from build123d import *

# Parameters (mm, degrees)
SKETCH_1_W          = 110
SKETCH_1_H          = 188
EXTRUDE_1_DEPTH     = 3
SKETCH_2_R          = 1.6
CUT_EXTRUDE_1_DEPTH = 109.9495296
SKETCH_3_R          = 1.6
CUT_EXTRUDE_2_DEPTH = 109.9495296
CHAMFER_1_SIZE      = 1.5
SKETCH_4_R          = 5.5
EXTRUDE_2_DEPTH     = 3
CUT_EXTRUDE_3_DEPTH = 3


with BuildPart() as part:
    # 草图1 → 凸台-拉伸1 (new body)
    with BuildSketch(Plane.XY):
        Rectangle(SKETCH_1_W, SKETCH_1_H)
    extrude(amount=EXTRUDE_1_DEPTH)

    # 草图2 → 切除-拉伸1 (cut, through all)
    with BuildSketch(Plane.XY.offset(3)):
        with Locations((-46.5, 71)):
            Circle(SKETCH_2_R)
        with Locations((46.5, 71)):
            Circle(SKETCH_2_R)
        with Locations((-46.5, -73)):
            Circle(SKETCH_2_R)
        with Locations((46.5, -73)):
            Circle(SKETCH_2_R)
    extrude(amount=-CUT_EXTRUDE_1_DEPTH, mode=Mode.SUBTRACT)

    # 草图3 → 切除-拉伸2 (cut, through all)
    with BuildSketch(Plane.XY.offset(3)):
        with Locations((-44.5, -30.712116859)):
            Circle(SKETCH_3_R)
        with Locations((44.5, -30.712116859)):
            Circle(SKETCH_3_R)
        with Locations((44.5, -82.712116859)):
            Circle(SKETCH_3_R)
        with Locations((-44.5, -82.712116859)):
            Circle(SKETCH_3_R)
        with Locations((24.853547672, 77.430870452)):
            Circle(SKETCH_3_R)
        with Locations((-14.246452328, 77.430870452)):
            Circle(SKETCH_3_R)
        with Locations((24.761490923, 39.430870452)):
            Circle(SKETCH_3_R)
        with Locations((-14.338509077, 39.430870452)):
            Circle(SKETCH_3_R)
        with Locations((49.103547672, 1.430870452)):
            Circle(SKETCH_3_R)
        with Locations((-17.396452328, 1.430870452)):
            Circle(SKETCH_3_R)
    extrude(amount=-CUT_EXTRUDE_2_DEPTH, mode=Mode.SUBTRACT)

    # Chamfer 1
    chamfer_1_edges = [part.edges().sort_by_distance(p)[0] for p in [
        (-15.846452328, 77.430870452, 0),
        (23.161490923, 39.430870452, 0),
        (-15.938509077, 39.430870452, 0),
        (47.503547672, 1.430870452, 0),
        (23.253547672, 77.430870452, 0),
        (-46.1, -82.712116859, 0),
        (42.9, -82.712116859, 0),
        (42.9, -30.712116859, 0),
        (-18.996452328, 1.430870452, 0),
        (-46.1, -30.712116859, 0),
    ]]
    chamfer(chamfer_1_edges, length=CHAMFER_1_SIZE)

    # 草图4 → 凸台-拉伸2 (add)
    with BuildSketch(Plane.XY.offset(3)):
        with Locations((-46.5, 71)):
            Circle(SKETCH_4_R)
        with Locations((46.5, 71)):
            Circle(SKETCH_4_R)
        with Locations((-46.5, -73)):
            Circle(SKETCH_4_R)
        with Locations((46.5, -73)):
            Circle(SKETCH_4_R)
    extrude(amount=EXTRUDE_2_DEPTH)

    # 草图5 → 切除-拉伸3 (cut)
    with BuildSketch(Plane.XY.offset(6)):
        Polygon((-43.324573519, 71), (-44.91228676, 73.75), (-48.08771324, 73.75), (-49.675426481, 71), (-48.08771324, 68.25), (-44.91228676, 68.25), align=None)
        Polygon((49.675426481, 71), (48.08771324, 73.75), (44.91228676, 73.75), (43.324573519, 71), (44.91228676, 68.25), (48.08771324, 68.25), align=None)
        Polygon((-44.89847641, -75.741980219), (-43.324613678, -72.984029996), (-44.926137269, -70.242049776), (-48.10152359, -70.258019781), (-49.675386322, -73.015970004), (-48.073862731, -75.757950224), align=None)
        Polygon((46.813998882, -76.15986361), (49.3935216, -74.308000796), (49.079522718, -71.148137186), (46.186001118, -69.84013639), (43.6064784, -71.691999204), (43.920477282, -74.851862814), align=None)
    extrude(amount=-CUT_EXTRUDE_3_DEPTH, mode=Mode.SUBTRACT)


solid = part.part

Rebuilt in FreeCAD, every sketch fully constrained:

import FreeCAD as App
import Part
import Sketcher

V = App.Vector
Q = App.Units.Quantity


def edges_at(feature, points):
    """Names of the edges that pass closest to the given points."""
    edges = feature.Shape.Edges
    near = lambda p: min(range(len(edges)), key=lambda i: edges[i].distToShape(Part.Vertex(*p))[0])
    return sorted({f"Edge{near(p) + 1}" for p in points})


def add_polygon(sketch, points):
    """Adds a closed chain of lines whose ends are joined by coincident constraints."""
    first, n = sketch.GeometryCount, len(points)
    for a, b in zip(points, points[1:] + points[:1]):
        sketch.addGeometry(Part.LineSegment(App.Vector(*a, 0), App.Vector(*b, 0)), False)
    for i in range(n):
        sketch.addConstraint(Sketcher.Constraint("Coincident", first + i, 2, first + (i + 1) % n, 1))

doc = App.newDocument("Part")
body = doc.addObject("PartDesign::Body", "Body")

# Sketch on XY plane
sketch1 = body.newObject("Sketcher::SketchObject", "Sketch")
sketch1.AttachmentSupport = (doc.getObject("XY_Plane"), [""])
sketch1.MapMode = "FlatFace"
add_polygon(sketch1, [(-55, 94), (-55, -94), (55, -94), (55, 94)])  # lines 0-3
sketch1.addConstraint([
    Sketcher.Constraint("Vertical", 0),
    Sketcher.Constraint("Horizontal", 1),
    Sketcher.Constraint("Vertical", 2),
    Sketcher.Constraint("Horizontal", 3),
    Sketcher.Constraint("Symmetric", 0, 2, 2, 2, -1, 1),
    Sketcher.Constraint("DistanceX", 1, 1, 1, 2, Q("110 mm")),
    Sketcher.Constraint("DistanceY", 0, 2, 0, 1, Q("188 mm")),
])
pad1 = body.newObject("PartDesign::Pad", "Pad")
pad1.Profile = sketch1
pad1.Length = 3

# Sketch on XY plane
sketch2 = body.newObject("Sketcher::SketchObject", "Sketch001")
sketch2.AttachmentSupport = (doc.getObject("XY_Plane"), [""])
sketch2.MapMode = "FlatFace"
sketch2.AttachmentOffset = App.Placement(V(0, 0, 3), App.Rotation())
sketch2.addGeometry([
    Part.Circle(V(-46.5, 71, 0), V(0, 0, 1), 1.6),
    Part.Circle(V(46.5, 71, 0), V(0, 0, 1), 1.6),
    Part.Circle(V(-46.5, -73, 0), V(0, 0, 1), 1.6),
    Part.Circle(V(46.5, -73, 0), V(0, 0, 1), 1.6),
], False)
sketch2.addConstraint([
    Sketcher.Constraint("Equal", 0, 1),
    Sketcher.Constraint("Equal", 1, 2),
    Sketcher.Constraint("Equal", 2, 3),
    Sketcher.Constraint("Symmetric", 0, 3, 1, 3, -2),
    Sketcher.Constraint("Symmetric", 2, 3, 3, 3, -2),
    Sketcher.Constraint("Vertical", 0, 3, 2, 3),
    Sketcher.Constraint("Diameter", 0, Q("3.2 mm")),
    Sketcher.Constraint("DistanceY", -1, 1, 0, 3, Q("71 mm")),
    Sketcher.Constraint("DistanceY", 2, 3, -1, 1, Q("73 mm")),
    Sketcher.Constraint("DistanceX", 0, 3, 1, 3, Q("93 mm")),
])
pocket1 = body.newObject("PartDesign::Pocket", "Pocket")
pocket1.Profile = sketch2
pocket1.Type = "ThroughAll"

# Sketch on XY plane
sketch3 = body.newObject("Sketcher::SketchObject", "Sketch002")
sketch3.AttachmentSupport = (doc.getObject("XY_Plane"), [""])
sketch3.MapMode = "FlatFace"
sketch3.AttachmentOffset = App.Placement(V(0, 0, 3), App.Rotation())
sketch3.addGeometry([
    Part.Circle(V(-44.5, -30.712117, 0), V(0, 0, 1), 1.6),  # 0
    Part.Circle(V(44.5, -30.712117, 0), V(0, 0, 1), 1.6),  # 1
    Part.Circle(V(44.5, -82.712117, 0), V(0, 0, 1), 1.6),  # 2
    Part.Circle(V(-44.5, -82.712117, 0), V(0, 0, 1), 1.6),  # 3
    Part.Circle(V(24.853548, 77.43087, 0), V(0, 0, 1), 1.6),  # 4
    Part.Circle(V(-14.246452, 77.43087, 0), V(0, 0, 1), 1.6),  # 5
    Part.Circle(V(24.761491, 39.43087, 0), V(0, 0, 1), 1.6),  # 6
    Part.Circle(V(-14.338509, 39.43087, 0), V(0, 0, 1), 1.6),  # 7
    Part.Circle(V(49.103548, 1.43087, 0), V(0, 0, 1), 1.6),  # 8
    Part.Circle(V(-17.396452, 1.43087, 0), V(0, 0, 1), 1.6),  # 9
], False)
sketch3.addConstraint([
    Sketcher.Constraint("Equal", 0, 1),
    Sketcher.Constraint("Equal", 1, 2),
    Sketcher.Constraint("Equal", 2, 3),
    Sketcher.Constraint("Equal", 3, 4),
    Sketcher.Constraint("Equal", 4, 5),
    Sketcher.Constraint("Equal", 5, 6),
    Sketcher.Constraint("Equal", 6, 7),
    Sketcher.Constraint("Equal", 7, 8),
    Sketcher.Constraint("Equal", 8, 9),
    Sketcher.Constraint("Symmetric", 0, 3, 1, 3, -2),
    Sketcher.Constraint("Symmetric", 2, 3, 3, 3, -2),
    Sketcher.Constraint("Horizontal", 4, 3, 5, 3),
    Sketcher.Constraint("Horizontal", 6, 3, 7, 3),
    Sketcher.Constraint("Horizontal", 8, 3, 9, 3),
    Sketcher.Constraint("Vertical", 1, 3, 2, 3),
    Sketcher.Constraint("Diameter", 0, Q("3.2 mm")),
    Sketcher.Constraint("DistanceX", 0, 3, 1, 3, Q("89 mm")),
    Sketcher.Constraint("DistanceY", 2, 3, 1, 3, Q("52 mm")),
    Sketcher.Constraint("DistanceY", 6, 3, 4, 3, Q("38 mm")),
    Sketcher.Constraint("DistanceY", 8, 3, 6, 3, Q("38 mm")),
    Sketcher.Constraint("DistanceX", 5, 3, 4, 3, Q("39.1 mm")),
    Sketcher.Constraint("DistanceX", 7, 3, 6, 3, Q("39.1 mm")),
    Sketcher.Constraint("DistanceX", 9, 3, 8, 3, Q("66.5 mm")),
    Sketcher.Constraint("DistanceX", 4, 3, 8, 3, Q("24.25 mm")),
    Sketcher.Constraint("DistanceY", -1, 1, 4, 3, Q("77.43087 mm")),
    Sketcher.Constraint("DistanceX", -1, 1, 6, 3, Q("24.761491 mm")),
    Sketcher.Constraint("DistanceY", 0, 3, -1, 1, Q("30.712117 mm")),
    Sketcher.Constraint("DistanceX", -1, 1, 4, 3, Q("24.853548 mm")),
])
pocket2 = body.newObject("PartDesign::Pocket", "Pocket001")
pocket2.Profile = sketch3
pocket2.Type = "ThroughAll"
doc.recompute()

chamfer = body.newObject("PartDesign::Chamfer", "Chamfer")
chamfer.Base = (pocket2, edges_at(pocket2, [
    (-15.846, 77.431, 0),
    (23.161, 39.431, 0),
    (-15.939, 39.431, 0),
    (47.504, 1.431, 0),
    (23.254, 77.431, 0),
    (-46.1, -82.712, 0),
    (42.9, -82.712, 0),
    (42.9, -30.712, 0),
    (-18.996, 1.431, 0),
    (-46.1, -30.712, 0),
]))
chamfer.Size = 1.5

# Sketch on XY plane
sketch4 = body.newObject("Sketcher::SketchObject", "Sketch003")
sketch4.AttachmentSupport = (doc.getObject("XY_Plane"), [""])
sketch4.MapMode = "FlatFace"
sketch4.AttachmentOffset = App.Placement(V(0, 0, 3), App.Rotation())
sketch4.addGeometry([
    Part.Circle(V(-46.5, 71, 0), V(0, 0, 1), 5.5),
    Part.Circle(V(46.5, 71, 0), V(0, 0, 1), 5.5),
    Part.Circle(V(-46.5, -73, 0), V(0, 0, 1), 5.5),
    Part.Circle(V(46.5, -73, 0), V(0, 0, 1), 5.5),
], False)
sketch4.addConstraint([
    Sketcher.Constraint("Equal", 0, 1),
    Sketcher.Constraint("Equal", 1, 2),
    Sketcher.Constraint("Equal", 2, 3),
    Sketcher.Constraint("Symmetric", 0, 3, 1, 3, -2),
    Sketcher.Constraint("Symmetric", 2, 3, 3, 3, -2),
    Sketcher.Constraint("Vertical", 0, 3, 2, 3),
    Sketcher.Constraint("Diameter", 0, Q("11 mm")),
    Sketcher.Constraint("DistanceY", -1, 1, 0, 3, Q("71 mm")),
    Sketcher.Constraint("DistanceY", 2, 3, -1, 1, Q("73 mm")),
    Sketcher.Constraint("DistanceX", 0, 3, 1, 3, Q("93 mm")),
])
pad2 = body.newObject("PartDesign::Pad", "Pad001")
pad2.Profile = sketch4
pad2.Length = 3

# Sketch on XY plane
sketch5 = body.newObject("Sketcher::SketchObject", "Sketch004")
sketch5.AttachmentSupport = (doc.getObject("XY_Plane"), [""])
sketch5.MapMode = "FlatFace"
sketch5.AttachmentOffset = App.Placement(V(0, 0, 6), App.Rotation())
add_polygon(sketch5, [(-43.324574, 71), (-44.912287, 73.75), (-48.087713, 73.75), (-49.675426, 71), (-48.087713, 68.25), (-44.912287, 68.25)])  # lines 0-5
add_polygon(sketch5, [(49.675426, 71), (48.087713, 73.75), (44.912287, 73.75), (43.324574, 71), (44.912287, 68.25), (48.087713, 68.25)])  # lines 6-11
add_polygon(sketch5, [(-44.898476, -75.74198), (-43.324614, -72.98403), (-44.926137, -70.24205), (-48.101524, -70.25802), (-49.675386, -73.01597), (-48.073863, -75.75795)])  # lines 12-17
add_polygon(sketch5, [(46.813999, -76.159864), (49.393522, -74.308001), (49.079523, -71.148137), (46.186001, -69.840136), (43.606478, -71.691999), (43.920477, -74.851863)])  # lines 18-23
sketch5.addConstraint([
    Sketcher.Constraint("Horizontal", 1),
    Sketcher.Constraint("Horizontal", 4),
    Sketcher.Constraint("Horizontal", 7),
    Sketcher.Constraint("Horizontal", 10),
    Sketcher.Constraint("Symmetric", 1, 2, 6, 2, -2),
    Sketcher.Constraint("Symmetric", 5, 2, 8, 2, -2),
    Sketcher.Constraint("Symmetric", 4, 2, 9, 2, -2),
    Sketcher.Constraint("Symmetric", 2, 2, 11, 2, -2),
    Sketcher.Constraint("Parallel", 0, 3),
    Sketcher.Constraint("Parallel", 2, 5),
    Sketcher.Constraint("Parallel", 3, 6),
    Sketcher.Constraint("Parallel", 5, 8),
    Sketcher.Constraint("Parallel", 8, 11),
    Sketcher.Constraint("Parallel", 12, 15),
    Sketcher.Constraint("Parallel", 13, 16),
    Sketcher.Constraint("Parallel", 14, 17),
    Sketcher.Constraint("Parallel", 18, 21),
    Sketcher.Constraint("Parallel", 19, 22),
    Sketcher.Constraint("Parallel", 20, 23),
    Sketcher.Constraint("Horizontal", 2, 2, 5, 2),
    Sketcher.Constraint("Vertical", 1, 2, 3, 2),
    Sketcher.Constraint("Equal", 11, 12),
    Sketcher.Constraint("Equal", 12, 13),
    Sketcher.Constraint("Equal", 13, 14),
    Sketcher.Constraint("Equal", 14, 15),
    Sketcher.Constraint("Equal", 17, 18),
    Sketcher.Constraint("Equal", 18, 19),
    Sketcher.Constraint("Equal", 19, 20),
    Sketcher.Constraint("Equal", 20, 21),
    Sketcher.Constraint("Angle", 0, Q("120 deg")),
    Sketcher.Constraint("DistanceY", -1, 1, 2, 2, Q("71 mm")),
    Sketcher.Constraint("DistanceX", 0, 2, 6, 2, Q("93 mm")),
    Sketcher.Constraint("DistanceY", 3, 2, 1, 2, Q("5.5 mm")),
    Sketcher.Constraint("DistanceY", 18, 2, -1, 1, Q("74.308001 mm")),
    Sketcher.Constraint("DistanceX", -1, 1, 20, 2, Q("46.186001 mm")),
    Sketcher.Constraint("DistanceY", 21, 2, -1, 1, Q("71.691999 mm")),
    Sketcher.Constraint("DistanceX", -1, 1, 23, 2, Q("46.813999 mm")),
    Sketcher.Constraint("DistanceX", 17, 2, 18, 2, Q("94.291998 mm")),
    Sketcher.Constraint("DistanceX", 19, 2, 18, 2, Q("0.313999 mm")),
    Sketcher.Constraint("DistanceX", 3, 2, 12, 2, Q("4.7631 mm")),
    Sketcher.Constraint("DistanceX", 15, 2, 4, 2, Q("4.7631 mm")),
    Sketcher.Constraint("DistanceY", 16, 2, 13, 2, Q("5.5159 mm")),
    Sketcher.Constraint("DistanceX", 1, 2, 1, 1, Q("3.175426 mm")),
    Sketcher.Constraint("DistanceY", 12, 2, -1, 1, Q("72.98403 mm")),
])
pocket3 = body.newObject("PartDesign::Pocket", "Pocket002")
pocket3.Profile = sketch5
pocket3.Length = 3

doc.recompute()
